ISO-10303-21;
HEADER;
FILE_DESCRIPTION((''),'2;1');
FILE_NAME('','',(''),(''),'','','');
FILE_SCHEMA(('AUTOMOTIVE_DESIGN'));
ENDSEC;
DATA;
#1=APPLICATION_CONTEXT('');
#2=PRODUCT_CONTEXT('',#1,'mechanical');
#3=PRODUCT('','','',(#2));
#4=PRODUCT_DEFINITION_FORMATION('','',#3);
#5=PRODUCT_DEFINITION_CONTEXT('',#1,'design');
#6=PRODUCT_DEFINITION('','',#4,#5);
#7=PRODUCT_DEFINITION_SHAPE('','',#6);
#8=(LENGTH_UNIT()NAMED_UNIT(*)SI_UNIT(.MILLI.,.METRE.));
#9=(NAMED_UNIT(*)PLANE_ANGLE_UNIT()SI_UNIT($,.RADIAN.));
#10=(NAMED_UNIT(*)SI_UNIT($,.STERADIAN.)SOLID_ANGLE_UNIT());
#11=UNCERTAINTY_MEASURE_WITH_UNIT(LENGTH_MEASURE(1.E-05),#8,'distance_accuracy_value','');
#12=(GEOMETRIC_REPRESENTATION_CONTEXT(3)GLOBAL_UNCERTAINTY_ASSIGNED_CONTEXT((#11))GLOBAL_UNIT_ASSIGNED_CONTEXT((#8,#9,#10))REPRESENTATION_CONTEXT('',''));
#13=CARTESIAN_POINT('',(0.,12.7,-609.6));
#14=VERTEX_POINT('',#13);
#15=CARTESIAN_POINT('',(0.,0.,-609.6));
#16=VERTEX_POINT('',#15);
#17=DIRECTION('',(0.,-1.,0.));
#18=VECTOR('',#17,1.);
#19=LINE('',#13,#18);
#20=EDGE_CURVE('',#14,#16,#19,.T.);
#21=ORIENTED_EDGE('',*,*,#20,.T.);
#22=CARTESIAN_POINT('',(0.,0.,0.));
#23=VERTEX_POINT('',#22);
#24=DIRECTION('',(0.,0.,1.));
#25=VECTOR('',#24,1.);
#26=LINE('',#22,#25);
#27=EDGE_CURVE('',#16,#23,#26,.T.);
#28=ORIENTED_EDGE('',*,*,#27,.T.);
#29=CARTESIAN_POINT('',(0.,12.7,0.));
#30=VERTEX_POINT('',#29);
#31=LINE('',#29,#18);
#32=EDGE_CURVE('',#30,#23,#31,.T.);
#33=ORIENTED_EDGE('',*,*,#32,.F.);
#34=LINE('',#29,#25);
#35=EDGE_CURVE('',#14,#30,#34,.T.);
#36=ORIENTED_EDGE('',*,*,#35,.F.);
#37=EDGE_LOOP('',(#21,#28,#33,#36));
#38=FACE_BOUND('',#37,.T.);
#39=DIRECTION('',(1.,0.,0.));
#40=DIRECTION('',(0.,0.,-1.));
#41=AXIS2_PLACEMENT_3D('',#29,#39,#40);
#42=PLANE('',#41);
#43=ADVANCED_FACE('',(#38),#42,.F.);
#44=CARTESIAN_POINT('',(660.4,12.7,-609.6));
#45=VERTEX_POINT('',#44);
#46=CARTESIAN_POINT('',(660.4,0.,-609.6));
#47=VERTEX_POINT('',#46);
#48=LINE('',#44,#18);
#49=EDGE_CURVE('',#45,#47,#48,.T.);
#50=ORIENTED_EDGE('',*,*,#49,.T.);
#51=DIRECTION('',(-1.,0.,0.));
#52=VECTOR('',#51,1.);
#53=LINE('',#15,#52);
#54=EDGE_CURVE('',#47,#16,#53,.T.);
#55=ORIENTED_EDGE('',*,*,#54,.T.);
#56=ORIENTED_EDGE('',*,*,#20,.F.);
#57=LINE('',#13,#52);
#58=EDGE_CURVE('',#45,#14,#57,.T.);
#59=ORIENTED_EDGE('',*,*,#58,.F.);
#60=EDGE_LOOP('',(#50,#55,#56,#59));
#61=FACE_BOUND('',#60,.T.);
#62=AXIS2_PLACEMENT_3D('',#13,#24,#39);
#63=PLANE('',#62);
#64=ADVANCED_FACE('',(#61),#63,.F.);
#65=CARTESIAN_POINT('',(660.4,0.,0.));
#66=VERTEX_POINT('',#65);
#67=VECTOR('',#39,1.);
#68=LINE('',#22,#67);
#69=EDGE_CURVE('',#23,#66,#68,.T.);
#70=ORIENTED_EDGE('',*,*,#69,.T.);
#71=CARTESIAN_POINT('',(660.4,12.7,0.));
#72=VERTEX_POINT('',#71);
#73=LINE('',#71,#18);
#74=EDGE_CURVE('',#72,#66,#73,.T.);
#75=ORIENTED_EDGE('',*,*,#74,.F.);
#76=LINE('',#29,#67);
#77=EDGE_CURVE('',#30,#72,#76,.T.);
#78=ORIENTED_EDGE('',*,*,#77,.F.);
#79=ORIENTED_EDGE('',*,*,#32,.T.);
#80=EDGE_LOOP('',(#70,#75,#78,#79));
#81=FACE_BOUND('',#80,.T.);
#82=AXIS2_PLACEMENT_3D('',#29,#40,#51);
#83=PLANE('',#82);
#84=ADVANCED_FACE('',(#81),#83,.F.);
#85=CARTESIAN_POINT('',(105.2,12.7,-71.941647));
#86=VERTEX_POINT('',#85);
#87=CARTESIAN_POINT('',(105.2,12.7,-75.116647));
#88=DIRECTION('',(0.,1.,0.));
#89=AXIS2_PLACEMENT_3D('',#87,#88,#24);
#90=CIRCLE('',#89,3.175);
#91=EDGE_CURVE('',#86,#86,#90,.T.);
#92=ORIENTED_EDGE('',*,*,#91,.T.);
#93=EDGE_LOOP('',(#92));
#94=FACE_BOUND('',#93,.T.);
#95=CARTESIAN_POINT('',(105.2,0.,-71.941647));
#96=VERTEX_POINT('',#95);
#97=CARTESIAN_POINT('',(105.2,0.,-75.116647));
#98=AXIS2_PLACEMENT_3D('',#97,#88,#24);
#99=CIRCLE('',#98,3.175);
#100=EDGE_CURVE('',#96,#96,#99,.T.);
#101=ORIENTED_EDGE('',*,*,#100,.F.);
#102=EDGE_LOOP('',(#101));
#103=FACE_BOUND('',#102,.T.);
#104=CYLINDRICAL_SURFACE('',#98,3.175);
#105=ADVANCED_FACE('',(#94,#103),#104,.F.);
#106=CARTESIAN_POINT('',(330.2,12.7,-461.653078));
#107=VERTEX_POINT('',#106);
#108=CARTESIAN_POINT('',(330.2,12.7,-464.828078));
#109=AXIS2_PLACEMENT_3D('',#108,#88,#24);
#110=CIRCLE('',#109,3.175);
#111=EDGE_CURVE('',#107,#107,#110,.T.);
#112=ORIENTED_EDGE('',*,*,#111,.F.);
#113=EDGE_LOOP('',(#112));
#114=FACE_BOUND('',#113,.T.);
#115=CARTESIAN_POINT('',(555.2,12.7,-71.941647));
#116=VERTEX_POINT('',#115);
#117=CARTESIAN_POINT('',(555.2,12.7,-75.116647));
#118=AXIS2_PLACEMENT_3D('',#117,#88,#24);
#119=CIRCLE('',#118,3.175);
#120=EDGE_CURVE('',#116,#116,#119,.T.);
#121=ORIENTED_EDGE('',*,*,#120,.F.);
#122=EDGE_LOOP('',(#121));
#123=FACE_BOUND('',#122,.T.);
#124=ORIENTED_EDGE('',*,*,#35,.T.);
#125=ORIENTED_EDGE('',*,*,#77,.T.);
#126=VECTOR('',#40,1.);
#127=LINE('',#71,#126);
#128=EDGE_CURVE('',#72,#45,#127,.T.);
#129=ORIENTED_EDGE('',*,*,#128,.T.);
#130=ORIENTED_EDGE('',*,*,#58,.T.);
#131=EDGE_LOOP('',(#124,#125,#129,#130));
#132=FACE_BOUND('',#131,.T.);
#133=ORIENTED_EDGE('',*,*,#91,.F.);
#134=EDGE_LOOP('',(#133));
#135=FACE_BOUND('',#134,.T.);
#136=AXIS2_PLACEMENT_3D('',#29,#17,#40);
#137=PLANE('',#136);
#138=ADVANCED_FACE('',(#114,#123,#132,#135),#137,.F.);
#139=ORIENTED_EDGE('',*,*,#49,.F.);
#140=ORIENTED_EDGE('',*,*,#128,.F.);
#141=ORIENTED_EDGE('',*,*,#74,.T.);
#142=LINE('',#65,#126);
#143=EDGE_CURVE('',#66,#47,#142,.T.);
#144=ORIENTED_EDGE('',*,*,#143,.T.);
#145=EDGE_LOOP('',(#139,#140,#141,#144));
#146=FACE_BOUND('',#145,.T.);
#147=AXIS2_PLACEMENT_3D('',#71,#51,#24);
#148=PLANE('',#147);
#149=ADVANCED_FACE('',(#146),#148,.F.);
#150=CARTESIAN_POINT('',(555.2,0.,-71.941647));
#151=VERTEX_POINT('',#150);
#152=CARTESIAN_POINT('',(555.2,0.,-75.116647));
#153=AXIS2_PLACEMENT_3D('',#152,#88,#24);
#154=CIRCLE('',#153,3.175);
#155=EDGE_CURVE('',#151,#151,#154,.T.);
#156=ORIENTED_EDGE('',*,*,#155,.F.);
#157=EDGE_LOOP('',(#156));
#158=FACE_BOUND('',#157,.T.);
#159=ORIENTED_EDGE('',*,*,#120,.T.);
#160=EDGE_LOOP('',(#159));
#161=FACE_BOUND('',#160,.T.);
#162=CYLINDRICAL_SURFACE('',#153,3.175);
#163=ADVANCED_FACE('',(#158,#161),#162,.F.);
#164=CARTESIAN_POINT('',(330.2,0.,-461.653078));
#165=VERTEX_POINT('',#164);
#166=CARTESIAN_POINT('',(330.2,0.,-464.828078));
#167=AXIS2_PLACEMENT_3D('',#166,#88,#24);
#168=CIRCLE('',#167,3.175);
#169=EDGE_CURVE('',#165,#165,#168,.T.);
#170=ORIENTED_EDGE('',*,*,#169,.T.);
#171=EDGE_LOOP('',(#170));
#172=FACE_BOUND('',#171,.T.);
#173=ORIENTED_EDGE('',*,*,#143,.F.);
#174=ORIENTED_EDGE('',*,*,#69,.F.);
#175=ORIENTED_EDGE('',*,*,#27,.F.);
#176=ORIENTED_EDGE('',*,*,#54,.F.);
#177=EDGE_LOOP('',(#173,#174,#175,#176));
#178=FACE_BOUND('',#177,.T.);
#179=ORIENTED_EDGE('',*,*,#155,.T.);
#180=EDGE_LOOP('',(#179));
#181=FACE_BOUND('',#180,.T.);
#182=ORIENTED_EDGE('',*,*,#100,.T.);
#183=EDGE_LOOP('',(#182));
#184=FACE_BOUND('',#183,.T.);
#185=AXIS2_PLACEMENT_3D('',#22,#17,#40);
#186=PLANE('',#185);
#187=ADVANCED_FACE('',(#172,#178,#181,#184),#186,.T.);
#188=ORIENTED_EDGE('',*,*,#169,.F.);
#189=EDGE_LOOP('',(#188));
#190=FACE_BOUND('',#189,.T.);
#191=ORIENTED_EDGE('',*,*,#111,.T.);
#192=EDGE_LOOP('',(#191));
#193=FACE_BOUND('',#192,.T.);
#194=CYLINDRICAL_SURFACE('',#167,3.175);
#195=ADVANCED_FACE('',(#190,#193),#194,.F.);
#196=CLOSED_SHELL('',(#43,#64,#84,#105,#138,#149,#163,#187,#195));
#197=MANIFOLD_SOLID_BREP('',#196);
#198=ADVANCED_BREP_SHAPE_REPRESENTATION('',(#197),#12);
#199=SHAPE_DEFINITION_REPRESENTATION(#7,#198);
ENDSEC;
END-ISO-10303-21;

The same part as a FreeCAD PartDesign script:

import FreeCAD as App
import Part
import Sketcher
from FreeCAD import Vector
Q = App.Units.Quantity


def add_polygon(sketch, points):
    """Adds a closed chain of lines whose ends are joined by coincident constraints."""
    first, n = sketch.GeometryCount, len(points)
    for a, b in zip(points, points[1:] + points[:1]):
        sketch.addGeometry(Part.LineSegment(App.Vector(*a, 0), App.Vector(*b, 0)), False)
    for i in range(n):
        sketch.addConstraint(Sketcher.Constraint("Coincident", first + i, 2, first + (i + 1) % n, 1))

doc = App.newDocument("Part")
body = doc.addObject("PartDesign::Body", "Body")

# Sketch on XZ plane
sketch1 = body.newObject("Sketcher::SketchObject", "Sketch")
sketch1.AttachmentSupport = (doc.getObject("XZ_Plane"), [""])
sketch1.MapMode = "FlatFace"
add_polygon(sketch1, [(0, -610), (0, 0), (660, 0), (660, -610)])  # lines 0-3
sketch1.addConstraint([
    Sketcher.Constraint("Vertical", 0),
    Sketcher.Constraint("Horizontal", 1),
    Sketcher.Constraint("Vertical", 2),
    Sketcher.Constraint("Horizontal", 3),
    Sketcher.Constraint("Coincident", 0, 2, -1, 1),
    Sketcher.Constraint("DistanceX", 1, 1, 1, 2, Q("26 in")),
    Sketcher.Constraint("DistanceY", 0, 1, 0, 2, Q("24 in")),
])
pad1 = body.newObject("PartDesign::Pad", "Pad")
pad1.Profile = sketch1
pad1.Length = Q("0.5 in")
pad1.Reversed = True

# Sketch on XZ plane
sketch2 = body.newObject("Sketcher::SketchObject", "Sketch001")
sketch2.AttachmentSupport = (doc.getObject("XZ_Plane"), [""])
sketch2.MapMode = "FlatFace"
sketch2.AttachmentOffset = App.Placement(Vector(0, 0, -0.5 * 25.4), App.Rotation())
sketch2.addGeometry([
    Part.Circle(Vector(105.2, -75.1, 0), Vector(0, 0, 1), 3.2),
    Part.Circle(Vector(555.2, -75.1, 0), Vector(0, 0, 1), 3.2),
    Part.Circle(Vector(330.2, -464.8, 0), Vector(0, 0, 1), 3.2),
], False)
sketch2.addConstraint([
    Sketcher.Constraint("Equal", 0, 1),
    Sketcher.Constraint("Equal", 1, 2),
    Sketcher.Constraint("Horizontal", 0, 3, 1, 3),
    Sketcher.Constraint("Diameter", 0, Q("0.25 in")),
    Sketcher.Constraint("DistanceX", -1, 1, 2, 3, Q("13 in")),
    Sketcher.Constraint("DistanceX", -1, 1, 0, 3, 105.2),
    Sketcher.Constraint("DistanceX", -1, 1, 1, 3, 555.2),
    Sketcher.Constraint("DistanceY", 2, 3, -1, 1, 464.828078),
    Sketcher.Constraint("DistanceY", 2, 3, 0, 3, 389.711432),
])
pocket1 = body.newObject("PartDesign::Pocket", "Pocket")
pocket1.Profile = sketch2
pocket1.Type = "ThroughAll"
pocket1.Reversed = True

doc.recompute()
